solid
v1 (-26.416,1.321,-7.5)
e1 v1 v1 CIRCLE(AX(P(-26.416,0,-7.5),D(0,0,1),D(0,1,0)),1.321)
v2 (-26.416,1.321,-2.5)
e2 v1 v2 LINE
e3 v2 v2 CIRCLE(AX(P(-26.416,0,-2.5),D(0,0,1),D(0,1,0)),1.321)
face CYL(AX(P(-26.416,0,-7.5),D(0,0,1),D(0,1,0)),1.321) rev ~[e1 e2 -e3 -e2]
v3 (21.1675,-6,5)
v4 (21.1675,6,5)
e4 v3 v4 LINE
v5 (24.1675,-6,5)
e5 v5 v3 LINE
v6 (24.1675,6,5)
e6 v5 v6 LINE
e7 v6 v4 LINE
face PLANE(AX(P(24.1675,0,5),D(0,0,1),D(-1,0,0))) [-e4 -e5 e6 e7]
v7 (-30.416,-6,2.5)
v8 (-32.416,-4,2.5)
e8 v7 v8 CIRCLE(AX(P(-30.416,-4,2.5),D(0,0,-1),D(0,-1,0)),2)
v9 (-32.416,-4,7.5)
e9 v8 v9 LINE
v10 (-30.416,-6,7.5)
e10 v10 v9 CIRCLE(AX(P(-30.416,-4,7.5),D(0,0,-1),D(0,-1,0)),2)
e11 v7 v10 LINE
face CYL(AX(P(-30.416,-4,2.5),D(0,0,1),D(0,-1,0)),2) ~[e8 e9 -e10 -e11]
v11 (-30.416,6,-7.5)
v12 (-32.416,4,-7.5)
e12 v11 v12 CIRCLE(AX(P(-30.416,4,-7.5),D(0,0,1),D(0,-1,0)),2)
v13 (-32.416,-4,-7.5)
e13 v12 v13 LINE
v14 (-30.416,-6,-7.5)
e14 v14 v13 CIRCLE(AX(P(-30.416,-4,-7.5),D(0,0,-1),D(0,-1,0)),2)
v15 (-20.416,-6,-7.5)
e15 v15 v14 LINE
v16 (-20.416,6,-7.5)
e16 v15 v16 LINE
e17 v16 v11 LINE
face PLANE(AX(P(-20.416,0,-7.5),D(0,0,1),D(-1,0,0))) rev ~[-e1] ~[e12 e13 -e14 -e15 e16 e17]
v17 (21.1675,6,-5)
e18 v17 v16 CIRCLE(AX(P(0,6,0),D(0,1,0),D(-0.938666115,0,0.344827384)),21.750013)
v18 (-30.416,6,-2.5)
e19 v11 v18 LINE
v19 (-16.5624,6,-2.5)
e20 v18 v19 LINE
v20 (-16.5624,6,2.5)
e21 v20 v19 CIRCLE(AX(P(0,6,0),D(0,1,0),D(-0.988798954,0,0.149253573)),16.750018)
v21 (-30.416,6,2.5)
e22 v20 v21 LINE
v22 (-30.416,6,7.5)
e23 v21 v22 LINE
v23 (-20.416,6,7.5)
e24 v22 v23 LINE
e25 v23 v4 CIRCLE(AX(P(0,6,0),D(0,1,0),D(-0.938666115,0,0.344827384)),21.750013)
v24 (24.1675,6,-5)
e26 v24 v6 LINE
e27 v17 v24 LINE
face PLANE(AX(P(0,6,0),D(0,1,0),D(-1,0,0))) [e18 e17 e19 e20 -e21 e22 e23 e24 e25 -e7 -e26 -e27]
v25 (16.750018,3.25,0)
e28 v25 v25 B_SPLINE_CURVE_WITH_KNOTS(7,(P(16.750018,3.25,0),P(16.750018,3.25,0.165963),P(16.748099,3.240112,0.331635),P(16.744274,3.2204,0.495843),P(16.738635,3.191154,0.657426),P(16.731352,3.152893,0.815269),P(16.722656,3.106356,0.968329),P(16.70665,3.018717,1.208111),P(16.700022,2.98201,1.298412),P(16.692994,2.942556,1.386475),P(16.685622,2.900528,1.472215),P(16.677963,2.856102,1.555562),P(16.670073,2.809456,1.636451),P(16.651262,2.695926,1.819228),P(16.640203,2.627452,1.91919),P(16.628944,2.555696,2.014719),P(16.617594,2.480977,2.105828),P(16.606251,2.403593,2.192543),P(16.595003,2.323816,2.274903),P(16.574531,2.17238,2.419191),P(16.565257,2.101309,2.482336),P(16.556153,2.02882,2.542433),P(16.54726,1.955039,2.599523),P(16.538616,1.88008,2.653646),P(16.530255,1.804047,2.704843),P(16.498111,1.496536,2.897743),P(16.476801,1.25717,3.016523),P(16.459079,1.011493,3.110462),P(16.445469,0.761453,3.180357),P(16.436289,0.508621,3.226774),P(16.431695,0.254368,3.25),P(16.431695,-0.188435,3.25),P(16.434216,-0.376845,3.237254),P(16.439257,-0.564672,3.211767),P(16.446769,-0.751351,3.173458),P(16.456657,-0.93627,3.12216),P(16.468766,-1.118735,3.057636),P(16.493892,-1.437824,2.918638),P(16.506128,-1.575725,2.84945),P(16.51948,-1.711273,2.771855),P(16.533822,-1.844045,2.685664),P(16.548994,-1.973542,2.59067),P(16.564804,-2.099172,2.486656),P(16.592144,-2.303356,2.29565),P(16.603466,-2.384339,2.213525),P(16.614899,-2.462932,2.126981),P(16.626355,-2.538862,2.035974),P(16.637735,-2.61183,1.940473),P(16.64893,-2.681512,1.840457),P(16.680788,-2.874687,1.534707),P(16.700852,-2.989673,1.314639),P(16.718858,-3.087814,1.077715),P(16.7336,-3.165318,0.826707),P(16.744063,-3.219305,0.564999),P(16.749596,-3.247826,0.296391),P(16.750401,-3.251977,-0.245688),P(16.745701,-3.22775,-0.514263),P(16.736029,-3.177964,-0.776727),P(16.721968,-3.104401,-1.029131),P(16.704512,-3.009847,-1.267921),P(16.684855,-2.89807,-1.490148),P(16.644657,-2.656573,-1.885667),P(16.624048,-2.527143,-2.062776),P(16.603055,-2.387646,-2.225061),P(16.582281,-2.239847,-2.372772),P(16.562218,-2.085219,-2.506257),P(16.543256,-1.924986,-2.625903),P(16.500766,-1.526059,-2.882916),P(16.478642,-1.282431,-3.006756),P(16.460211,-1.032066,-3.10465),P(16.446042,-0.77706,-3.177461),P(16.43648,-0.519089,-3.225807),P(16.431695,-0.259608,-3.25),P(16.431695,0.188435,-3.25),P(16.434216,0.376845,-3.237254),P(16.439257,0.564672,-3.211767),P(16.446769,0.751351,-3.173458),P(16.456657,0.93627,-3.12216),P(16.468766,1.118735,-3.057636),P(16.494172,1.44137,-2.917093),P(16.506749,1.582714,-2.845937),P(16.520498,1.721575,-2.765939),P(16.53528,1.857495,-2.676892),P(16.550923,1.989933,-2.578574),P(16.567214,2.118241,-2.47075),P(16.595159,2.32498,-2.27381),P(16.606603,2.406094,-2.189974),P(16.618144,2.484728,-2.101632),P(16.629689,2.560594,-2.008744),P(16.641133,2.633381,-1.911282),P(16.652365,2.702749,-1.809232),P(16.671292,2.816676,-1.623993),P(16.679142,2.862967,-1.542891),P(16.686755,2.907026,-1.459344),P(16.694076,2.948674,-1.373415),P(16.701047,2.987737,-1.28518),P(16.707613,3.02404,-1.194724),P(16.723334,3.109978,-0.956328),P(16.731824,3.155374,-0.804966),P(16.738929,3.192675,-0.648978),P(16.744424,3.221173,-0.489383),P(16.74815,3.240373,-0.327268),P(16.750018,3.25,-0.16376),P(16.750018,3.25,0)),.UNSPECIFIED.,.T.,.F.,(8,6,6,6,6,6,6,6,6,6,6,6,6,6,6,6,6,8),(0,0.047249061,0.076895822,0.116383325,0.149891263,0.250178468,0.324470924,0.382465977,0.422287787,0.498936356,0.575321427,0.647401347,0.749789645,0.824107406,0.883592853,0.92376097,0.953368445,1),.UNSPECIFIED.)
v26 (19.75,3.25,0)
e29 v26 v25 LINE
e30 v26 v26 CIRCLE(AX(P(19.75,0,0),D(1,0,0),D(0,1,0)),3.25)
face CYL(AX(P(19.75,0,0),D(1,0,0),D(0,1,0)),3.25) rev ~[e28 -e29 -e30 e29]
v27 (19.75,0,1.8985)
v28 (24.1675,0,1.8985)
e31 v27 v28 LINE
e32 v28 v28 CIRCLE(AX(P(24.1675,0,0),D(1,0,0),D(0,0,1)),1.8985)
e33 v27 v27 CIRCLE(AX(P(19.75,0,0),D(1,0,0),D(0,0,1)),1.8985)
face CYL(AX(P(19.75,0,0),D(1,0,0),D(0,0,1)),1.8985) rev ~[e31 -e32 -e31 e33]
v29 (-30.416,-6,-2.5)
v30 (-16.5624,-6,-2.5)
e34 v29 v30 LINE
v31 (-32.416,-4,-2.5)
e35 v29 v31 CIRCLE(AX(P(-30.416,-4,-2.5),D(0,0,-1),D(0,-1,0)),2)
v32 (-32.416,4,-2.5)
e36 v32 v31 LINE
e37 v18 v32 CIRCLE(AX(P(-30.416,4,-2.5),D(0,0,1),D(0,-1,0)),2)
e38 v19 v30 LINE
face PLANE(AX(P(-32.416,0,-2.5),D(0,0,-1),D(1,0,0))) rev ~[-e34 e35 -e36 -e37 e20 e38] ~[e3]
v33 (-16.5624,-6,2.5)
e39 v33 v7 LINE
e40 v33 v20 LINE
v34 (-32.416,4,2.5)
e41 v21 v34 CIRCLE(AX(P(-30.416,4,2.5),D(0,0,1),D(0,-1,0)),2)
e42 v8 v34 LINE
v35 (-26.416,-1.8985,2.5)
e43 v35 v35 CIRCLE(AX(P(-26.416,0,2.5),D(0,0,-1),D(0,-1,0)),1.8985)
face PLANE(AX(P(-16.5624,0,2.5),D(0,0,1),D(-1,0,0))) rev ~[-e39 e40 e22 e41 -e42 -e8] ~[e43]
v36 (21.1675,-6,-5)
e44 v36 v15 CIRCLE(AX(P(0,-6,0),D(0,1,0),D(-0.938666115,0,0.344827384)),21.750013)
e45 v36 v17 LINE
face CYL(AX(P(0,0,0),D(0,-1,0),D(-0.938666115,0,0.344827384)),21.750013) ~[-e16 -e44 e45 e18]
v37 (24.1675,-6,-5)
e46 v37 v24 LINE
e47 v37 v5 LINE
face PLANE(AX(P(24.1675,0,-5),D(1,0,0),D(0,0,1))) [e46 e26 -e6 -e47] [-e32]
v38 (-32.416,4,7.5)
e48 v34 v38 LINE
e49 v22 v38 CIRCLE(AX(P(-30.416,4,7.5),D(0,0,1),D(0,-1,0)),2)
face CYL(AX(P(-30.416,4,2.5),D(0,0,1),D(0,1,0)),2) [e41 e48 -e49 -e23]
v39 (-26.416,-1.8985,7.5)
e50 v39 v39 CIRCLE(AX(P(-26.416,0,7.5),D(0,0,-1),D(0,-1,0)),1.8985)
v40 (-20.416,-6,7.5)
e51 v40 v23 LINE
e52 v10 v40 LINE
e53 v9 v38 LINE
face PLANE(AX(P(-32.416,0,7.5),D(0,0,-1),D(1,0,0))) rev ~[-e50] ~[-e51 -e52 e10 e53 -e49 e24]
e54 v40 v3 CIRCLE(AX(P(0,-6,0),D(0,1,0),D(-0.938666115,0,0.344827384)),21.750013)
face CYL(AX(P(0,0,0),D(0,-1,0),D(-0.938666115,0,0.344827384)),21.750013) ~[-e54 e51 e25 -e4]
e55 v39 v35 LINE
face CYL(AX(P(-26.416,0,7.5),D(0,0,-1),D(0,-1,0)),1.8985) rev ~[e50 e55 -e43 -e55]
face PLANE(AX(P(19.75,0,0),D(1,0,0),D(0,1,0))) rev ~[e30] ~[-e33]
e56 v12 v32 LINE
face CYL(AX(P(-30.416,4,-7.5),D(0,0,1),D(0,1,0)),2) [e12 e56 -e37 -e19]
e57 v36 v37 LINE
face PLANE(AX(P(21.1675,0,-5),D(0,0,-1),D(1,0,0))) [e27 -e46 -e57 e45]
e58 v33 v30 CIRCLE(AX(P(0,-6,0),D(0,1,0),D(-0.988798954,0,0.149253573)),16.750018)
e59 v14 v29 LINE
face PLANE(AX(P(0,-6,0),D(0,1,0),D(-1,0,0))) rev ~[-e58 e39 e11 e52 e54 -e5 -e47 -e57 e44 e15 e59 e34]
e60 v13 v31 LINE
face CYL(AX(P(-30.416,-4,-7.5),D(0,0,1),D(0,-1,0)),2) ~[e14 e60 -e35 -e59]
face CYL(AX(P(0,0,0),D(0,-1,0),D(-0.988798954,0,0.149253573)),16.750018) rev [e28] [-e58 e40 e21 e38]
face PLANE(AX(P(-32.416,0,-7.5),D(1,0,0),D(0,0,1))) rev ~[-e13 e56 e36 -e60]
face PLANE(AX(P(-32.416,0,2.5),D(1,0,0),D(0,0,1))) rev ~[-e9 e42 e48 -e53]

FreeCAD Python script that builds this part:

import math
import FreeCAD as App
import Part
import Sketcher
Q = App.Units.Quantity


def edges_at(feature, points):
    """Names of the edges that pass closest to the given points."""
    edges = feature.Shape.Edges
    near = lambda p: min(range(len(edges)), key=lambda i: edges[i].distToShape(Part.Vertex(*p))[0])
    return sorted({f"Edge{near(p) + 1}" for p in points})

doc = App.newDocument("Part")
body = doc.addObject("PartDesign::Body", "Body")

sketch1 = doc.addObject("Sketcher::SketchObject", "Sketch")
body.addObject(sketch1)
sketch1.AttachmentSupport = (doc.XZ_Plane, [""])
sketch1.MapMode = "FlatFace"
sketch1.addGeometry([
    Part.ArcOfCircle(Part.Circle(App.Vector(0, 0, 0), App.Vector(0, 0, 1), 16.8), math.radians(-171), math.radians(171)),
    Part.LineSegment(App.Vector(-16.6, 2.5, 0), App.Vector(-32.4, 2.5, 0)),
    Part.LineSegment(App.Vector(-32.4, 2.5, 0), App.Vector(-32.4, 7.5, 0)),
    Part.LineSegment(App.Vector(-32.4, 7.5, 0), App.Vector(-20.4, 7.5, 0)),
    Part.ArcOfCircle(Part.Circle(App.Vector(0, 0, 0), App.Vector(0, 0, 1), 21.8), math.radians(13), math.radians(160)),
    Part.LineSegment(App.Vector(21.2, 5, 0), App.Vector(24.2, 5, 0)),
    Part.LineSegment(App.Vector(24.2, 5, 0), App.Vector(24.2, -5, 0)),
    Part.LineSegment(App.Vector(24.2, -5, 0), App.Vector(21.2, -5, 0)),
    Part.ArcOfCircle(Part.Circle(App.Vector(0, 0, 0), App.Vector(0, 0, 1), 21.8), math.radians(-160), math.radians(-13)),
    Part.LineSegment(App.Vector(-20.4, -7.5, 0), App.Vector(-32.4, -7.5, 0)),
    Part.LineSegment(App.Vector(-32.4, -7.5, 0), App.Vector(-32.4, -2.5, 0)),
    Part.LineSegment(App.Vector(-32.4, -2.5, 0), App.Vector(-16.6, -2.5, 0)),
], False)
sketch1.addConstraint([
    Sketcher.Constraint("Coincident", 0, 2, 1, 1),
    Sketcher.Constraint("Coincident", 1, 2, 2, 1),
    Sketcher.Constraint("Coincident", 2, 2, 3, 1),
    Sketcher.Constraint("Coincident", 3, 2, 4, 2),
    Sketcher.Constraint("Coincident", 4, 1, 5, 1),
    Sketcher.Constraint("Coincident", 5, 2, 6, 1),
    Sketcher.Constraint("Coincident", 6, 2, 7, 1),
    Sketcher.Constraint("Coincident", 7, 2, 8, 2),
    Sketcher.Constraint("Coincident", 8, 1, 9, 1),
    Sketcher.Constraint("Coincident", 9, 2, 10, 1),
    Sketcher.Constraint("Coincident", 10, 2, 11, 1),
    Sketcher.Constraint("Coincident", 11, 2, 0, 1),
    Sketcher.Constraint("Horizontal", 1),
    Sketcher.Constraint("Vertical", 2),
    Sketcher.Constraint("Horizontal", 3),
    Sketcher.Constraint("Horizontal", 5),
    Sketcher.Constraint("Vertical", 6),
    Sketcher.Constraint("Horizontal", 7),
    Sketcher.Constraint("Horizontal", 9),
    Sketcher.Constraint("Vertical", 10),
    Sketcher.Constraint("Horizontal", 11),
    Sketcher.Constraint("Coincident", 0, 3, -1, 1),
    Sketcher.Constraint("Coincident", 4, 3, -1, 1),
    Sketcher.Constraint("Coincident", 8, 3, -1, 1),
    Sketcher.Constraint("Equal", 4, 8),
    Sketcher.Constraint("Symmetric", 2, 2, 9, 2, -1),
    Sketcher.Constraint("Vertical", 4, 1, 7, 2),
    Sketcher.Constraint("Vertical", 0, 2, 11, 2),
    Sketcher.Constraint("DistanceX", 3, 1, 3, 2, Q("12 mm")),
    Sketcher.Constraint("DistanceX", 5, 1, 5, 2, Q("3 mm")),
    Sketcher.Constraint("DistanceY", 2, 1, 2, 2, Q("5 mm")),
    Sketcher.Constraint("DistanceY", 6, 2, 6, 1, Q("10 mm")),
    Sketcher.Constraint("Radius", 0, Q("16.75 mm")),
    Sketcher.Constraint("DistanceY", 8, 1, 0, 2, Q("10 mm")),
    Sketcher.Constraint("Radius", 4, Q("21.75 mm")),
])
pad1 = doc.addObject("PartDesign::Pad", "Pad")
body.addObject(pad1)
pad1.Profile = sketch1
pad1.Length = 12
pad1.Midplane = True

sketch2 = doc.addObject("Sketcher::SketchObject", "Sketch001")
body.addObject(sketch2)
sketch2.AttachmentSupport = (doc.XY_Plane, [""])
sketch2.MapMode = "FlatFace"
sketch2.AttachmentOffset = App.Placement(App.Vector(0, 0, 7.5), App.Rotation())
sketch2.addGeometry(Part.Circle(App.Vector(-26.4, 0, 0), App.Vector(0, 0, 1), 1.9), False)
sketch2.addConstraint([
    Sketcher.Constraint("PointOnObject", 0, 3, -1),
    Sketcher.Constraint("Diameter", 0, Q("3.797 mm")),
    Sketcher.Constraint("DistanceX", 0, 3, -1, 1, Q("26.416 mm")),
])
doc.recompute()
hole = doc.addObject("PartDesign::Hole", "Hole")
body.addObject(hole)
hole.Profile = sketch2
hole.ThreadType = "None"
hole.Diameter = 3.797
hole.DepthType = "Dimension"
hole.Depth = 5
hole.DrillPoint = "Flat"
doc.recompute()

fillet = doc.addObject("PartDesign::Fillet", "Fillet")
body.addObject(fillet)
fillet.Base = (hole, edges_at(hole, [
    (-32.416, -6, -5),
    (-32.416, 6, -5),
    (-32.416, 6, 5),
    (-32.416, -6, 5),
]))
fillet.Radius = 2

sketch3 = doc.addObject("Sketcher::SketchObject", "Sketch002")
body.addObject(sketch3)
sketch3.AttachmentSupport = (doc.YZ_Plane, [""])
sketch3.MapMode = "FlatFace"
sketch3.AttachmentOffset = App.Placement(App.Vector(0, 0, 19.75), App.Rotation())
sketch3.addGeometry(Part.Circle(App.Vector(0, 0, 0), App.Vector(0, 0, 1), 3.2), False)
sketch3.addConstraint([
    Sketcher.Constraint("Coincident", 0, 3, -1, 1),
    Sketcher.Constraint("Diameter", 0, Q("6.5 mm")),
])
pocket1 = doc.addObject("PartDesign::Pocket", "Pocket")
body.addObject(pocket1)
pocket1.Profile = sketch3
pocket1.Type = "UpToFirst"

sketch4 = doc.addObject("Sketcher::SketchObject", "Sketch003")
body.addObject(sketch4)
sketch4.AttachmentSupport = (doc.YZ_Plane, [""])
sketch4.MapMode = "FlatFace"
sketch4.AttachmentOffset = App.Placement(App.Vector(0, 0, 19.75), App.Rotation())
sketch4.addGeometry(Part.Circle(App.Vector(0, 0, 0), App.Vector(0, 0, 1), 1.9), False)
sketch4.addConstraint([
    Sketcher.Constraint("Coincident", 0, 3, -1, 1),
    Sketcher.Constraint("Diameter", 0, Q("3.797 mm")),
])
doc.recompute()
hole2 = doc.addObject("PartDesign::Hole", "Hole001")
body.addObject(hole2)
hole2.Profile = sketch4
hole2.ThreadType = "None"
hole2.Diameter = 3.797
hole2.DepthType = "ThroughAll"
hole2.Reversed = True

sketch5 = doc.addObject("Sketcher::SketchObject", "Sketch004")
body.addObject(sketch5)
sketch5.AttachmentSupport = (doc.XY_Plane, [""])
sketch5.MapMode = "FlatFace"
sketch5.AttachmentOffset = App.Placement(App.Vector(0, 0, -7.5), App.Rotation())
sketch5.addGeometry(Part.Circle(App.Vector(-26.4, 0, 0), App.Vector(0, 0, 1), 1.3), False)
sketch5.addConstraint([
    Sketcher.Constraint("PointOnObject", 0, 3, -1),
    Sketcher.Constraint("Diameter", 0, Q("2.642 mm")),
    Sketcher.Constraint("DistanceX", 0, 3, -1, 1, Q("26.416 mm")),
])
doc.recompute()
hole3 = doc.addObject("PartDesign::Hole", "Hole002")
body.addObject(hole3)
hole3.Profile = sketch5
hole3.ThreadType = "None"
hole3.Diameter = 2.642
hole3.DepthType = "Dimension"
hole3.Depth = 5
hole3.DrillPoint = "Flat"
hole3.Reversed = True

doc.recompute()
